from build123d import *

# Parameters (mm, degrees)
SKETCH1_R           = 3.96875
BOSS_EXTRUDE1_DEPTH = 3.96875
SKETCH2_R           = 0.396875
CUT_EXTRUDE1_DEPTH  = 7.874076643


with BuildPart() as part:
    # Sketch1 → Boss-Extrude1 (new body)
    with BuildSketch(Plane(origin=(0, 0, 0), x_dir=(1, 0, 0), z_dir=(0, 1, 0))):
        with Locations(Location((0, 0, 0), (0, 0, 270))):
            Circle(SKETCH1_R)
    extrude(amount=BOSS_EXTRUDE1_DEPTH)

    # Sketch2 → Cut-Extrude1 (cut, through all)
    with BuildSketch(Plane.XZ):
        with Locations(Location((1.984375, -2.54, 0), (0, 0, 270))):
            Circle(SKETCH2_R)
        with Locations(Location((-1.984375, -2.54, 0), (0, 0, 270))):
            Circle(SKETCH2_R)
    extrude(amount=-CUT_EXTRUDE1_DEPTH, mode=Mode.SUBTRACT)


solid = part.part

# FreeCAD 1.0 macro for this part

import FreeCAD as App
import Part
import Sketcher
Q = App.Units.Quantity

doc = App.newDocument("Part")
body = doc.addObject("PartDesign::Body", "Body")

sketch1 = body.newObject("Sketcher::SketchObject", "Sketch")
sketch1.AttachmentSupport = (doc.getObject("XZ_Plane"), [""])
sketch1.MapMode = "FlatFace"
sketch1.addGeometry(Part.Circle(App.Vector(0, 0, 0), App.Vector(0, 0, 1), 4), False)
sketch1.addConstraint([
    Sketcher.Constraint("Coincident", 0, 3, -1, 1),
    Sketcher.Constraint("Diameter", 0, Q("0.3125 in")),
])
pad1 = body.newObject("PartDesign::Pad", "Pad")
pad1.Profile = sketch1
pad1.Length = Q("0.15625 in")
pad1.Reversed = True

sketch2 = body.newObject("Sketcher::SketchObject", "Sketch001")
sketch2.AttachmentSupport = (doc.getObject("XZ_Plane"), [""])
sketch2.MapMode = "FlatFace"
sketch2.addGeometry([
    Part.Circle(App.Vector(1.98, -2.54, 0), App.Vector(0, 0, 1), 0.4),
    Part.Circle(App.Vector(-1.98, -2.54, 0), App.Vector(0, 0, 1), 0.4),
], False)
sketch2.addConstraint([
    Sketcher.Constraint("Equal", 0, 1),
    Sketcher.Constraint("Symmetric", 0, 3, 1, 3, -2),
    Sketcher.Constraint("Diameter", 0, Q("0.03125 in")),
    Sketcher.Constraint("DistanceY", 0, 3, -1, 1, Q("0.1 in")),
    Sketcher.Constraint("DistanceX", -1, 1, 0, 3, Q("0.078125 in")),
])
pocket1 = body.newObject("PartDesign::Pocket", "Pocket")
pocket1.Profile = sketch2
pocket1.Type = "ThroughAll"

doc.recompute()
